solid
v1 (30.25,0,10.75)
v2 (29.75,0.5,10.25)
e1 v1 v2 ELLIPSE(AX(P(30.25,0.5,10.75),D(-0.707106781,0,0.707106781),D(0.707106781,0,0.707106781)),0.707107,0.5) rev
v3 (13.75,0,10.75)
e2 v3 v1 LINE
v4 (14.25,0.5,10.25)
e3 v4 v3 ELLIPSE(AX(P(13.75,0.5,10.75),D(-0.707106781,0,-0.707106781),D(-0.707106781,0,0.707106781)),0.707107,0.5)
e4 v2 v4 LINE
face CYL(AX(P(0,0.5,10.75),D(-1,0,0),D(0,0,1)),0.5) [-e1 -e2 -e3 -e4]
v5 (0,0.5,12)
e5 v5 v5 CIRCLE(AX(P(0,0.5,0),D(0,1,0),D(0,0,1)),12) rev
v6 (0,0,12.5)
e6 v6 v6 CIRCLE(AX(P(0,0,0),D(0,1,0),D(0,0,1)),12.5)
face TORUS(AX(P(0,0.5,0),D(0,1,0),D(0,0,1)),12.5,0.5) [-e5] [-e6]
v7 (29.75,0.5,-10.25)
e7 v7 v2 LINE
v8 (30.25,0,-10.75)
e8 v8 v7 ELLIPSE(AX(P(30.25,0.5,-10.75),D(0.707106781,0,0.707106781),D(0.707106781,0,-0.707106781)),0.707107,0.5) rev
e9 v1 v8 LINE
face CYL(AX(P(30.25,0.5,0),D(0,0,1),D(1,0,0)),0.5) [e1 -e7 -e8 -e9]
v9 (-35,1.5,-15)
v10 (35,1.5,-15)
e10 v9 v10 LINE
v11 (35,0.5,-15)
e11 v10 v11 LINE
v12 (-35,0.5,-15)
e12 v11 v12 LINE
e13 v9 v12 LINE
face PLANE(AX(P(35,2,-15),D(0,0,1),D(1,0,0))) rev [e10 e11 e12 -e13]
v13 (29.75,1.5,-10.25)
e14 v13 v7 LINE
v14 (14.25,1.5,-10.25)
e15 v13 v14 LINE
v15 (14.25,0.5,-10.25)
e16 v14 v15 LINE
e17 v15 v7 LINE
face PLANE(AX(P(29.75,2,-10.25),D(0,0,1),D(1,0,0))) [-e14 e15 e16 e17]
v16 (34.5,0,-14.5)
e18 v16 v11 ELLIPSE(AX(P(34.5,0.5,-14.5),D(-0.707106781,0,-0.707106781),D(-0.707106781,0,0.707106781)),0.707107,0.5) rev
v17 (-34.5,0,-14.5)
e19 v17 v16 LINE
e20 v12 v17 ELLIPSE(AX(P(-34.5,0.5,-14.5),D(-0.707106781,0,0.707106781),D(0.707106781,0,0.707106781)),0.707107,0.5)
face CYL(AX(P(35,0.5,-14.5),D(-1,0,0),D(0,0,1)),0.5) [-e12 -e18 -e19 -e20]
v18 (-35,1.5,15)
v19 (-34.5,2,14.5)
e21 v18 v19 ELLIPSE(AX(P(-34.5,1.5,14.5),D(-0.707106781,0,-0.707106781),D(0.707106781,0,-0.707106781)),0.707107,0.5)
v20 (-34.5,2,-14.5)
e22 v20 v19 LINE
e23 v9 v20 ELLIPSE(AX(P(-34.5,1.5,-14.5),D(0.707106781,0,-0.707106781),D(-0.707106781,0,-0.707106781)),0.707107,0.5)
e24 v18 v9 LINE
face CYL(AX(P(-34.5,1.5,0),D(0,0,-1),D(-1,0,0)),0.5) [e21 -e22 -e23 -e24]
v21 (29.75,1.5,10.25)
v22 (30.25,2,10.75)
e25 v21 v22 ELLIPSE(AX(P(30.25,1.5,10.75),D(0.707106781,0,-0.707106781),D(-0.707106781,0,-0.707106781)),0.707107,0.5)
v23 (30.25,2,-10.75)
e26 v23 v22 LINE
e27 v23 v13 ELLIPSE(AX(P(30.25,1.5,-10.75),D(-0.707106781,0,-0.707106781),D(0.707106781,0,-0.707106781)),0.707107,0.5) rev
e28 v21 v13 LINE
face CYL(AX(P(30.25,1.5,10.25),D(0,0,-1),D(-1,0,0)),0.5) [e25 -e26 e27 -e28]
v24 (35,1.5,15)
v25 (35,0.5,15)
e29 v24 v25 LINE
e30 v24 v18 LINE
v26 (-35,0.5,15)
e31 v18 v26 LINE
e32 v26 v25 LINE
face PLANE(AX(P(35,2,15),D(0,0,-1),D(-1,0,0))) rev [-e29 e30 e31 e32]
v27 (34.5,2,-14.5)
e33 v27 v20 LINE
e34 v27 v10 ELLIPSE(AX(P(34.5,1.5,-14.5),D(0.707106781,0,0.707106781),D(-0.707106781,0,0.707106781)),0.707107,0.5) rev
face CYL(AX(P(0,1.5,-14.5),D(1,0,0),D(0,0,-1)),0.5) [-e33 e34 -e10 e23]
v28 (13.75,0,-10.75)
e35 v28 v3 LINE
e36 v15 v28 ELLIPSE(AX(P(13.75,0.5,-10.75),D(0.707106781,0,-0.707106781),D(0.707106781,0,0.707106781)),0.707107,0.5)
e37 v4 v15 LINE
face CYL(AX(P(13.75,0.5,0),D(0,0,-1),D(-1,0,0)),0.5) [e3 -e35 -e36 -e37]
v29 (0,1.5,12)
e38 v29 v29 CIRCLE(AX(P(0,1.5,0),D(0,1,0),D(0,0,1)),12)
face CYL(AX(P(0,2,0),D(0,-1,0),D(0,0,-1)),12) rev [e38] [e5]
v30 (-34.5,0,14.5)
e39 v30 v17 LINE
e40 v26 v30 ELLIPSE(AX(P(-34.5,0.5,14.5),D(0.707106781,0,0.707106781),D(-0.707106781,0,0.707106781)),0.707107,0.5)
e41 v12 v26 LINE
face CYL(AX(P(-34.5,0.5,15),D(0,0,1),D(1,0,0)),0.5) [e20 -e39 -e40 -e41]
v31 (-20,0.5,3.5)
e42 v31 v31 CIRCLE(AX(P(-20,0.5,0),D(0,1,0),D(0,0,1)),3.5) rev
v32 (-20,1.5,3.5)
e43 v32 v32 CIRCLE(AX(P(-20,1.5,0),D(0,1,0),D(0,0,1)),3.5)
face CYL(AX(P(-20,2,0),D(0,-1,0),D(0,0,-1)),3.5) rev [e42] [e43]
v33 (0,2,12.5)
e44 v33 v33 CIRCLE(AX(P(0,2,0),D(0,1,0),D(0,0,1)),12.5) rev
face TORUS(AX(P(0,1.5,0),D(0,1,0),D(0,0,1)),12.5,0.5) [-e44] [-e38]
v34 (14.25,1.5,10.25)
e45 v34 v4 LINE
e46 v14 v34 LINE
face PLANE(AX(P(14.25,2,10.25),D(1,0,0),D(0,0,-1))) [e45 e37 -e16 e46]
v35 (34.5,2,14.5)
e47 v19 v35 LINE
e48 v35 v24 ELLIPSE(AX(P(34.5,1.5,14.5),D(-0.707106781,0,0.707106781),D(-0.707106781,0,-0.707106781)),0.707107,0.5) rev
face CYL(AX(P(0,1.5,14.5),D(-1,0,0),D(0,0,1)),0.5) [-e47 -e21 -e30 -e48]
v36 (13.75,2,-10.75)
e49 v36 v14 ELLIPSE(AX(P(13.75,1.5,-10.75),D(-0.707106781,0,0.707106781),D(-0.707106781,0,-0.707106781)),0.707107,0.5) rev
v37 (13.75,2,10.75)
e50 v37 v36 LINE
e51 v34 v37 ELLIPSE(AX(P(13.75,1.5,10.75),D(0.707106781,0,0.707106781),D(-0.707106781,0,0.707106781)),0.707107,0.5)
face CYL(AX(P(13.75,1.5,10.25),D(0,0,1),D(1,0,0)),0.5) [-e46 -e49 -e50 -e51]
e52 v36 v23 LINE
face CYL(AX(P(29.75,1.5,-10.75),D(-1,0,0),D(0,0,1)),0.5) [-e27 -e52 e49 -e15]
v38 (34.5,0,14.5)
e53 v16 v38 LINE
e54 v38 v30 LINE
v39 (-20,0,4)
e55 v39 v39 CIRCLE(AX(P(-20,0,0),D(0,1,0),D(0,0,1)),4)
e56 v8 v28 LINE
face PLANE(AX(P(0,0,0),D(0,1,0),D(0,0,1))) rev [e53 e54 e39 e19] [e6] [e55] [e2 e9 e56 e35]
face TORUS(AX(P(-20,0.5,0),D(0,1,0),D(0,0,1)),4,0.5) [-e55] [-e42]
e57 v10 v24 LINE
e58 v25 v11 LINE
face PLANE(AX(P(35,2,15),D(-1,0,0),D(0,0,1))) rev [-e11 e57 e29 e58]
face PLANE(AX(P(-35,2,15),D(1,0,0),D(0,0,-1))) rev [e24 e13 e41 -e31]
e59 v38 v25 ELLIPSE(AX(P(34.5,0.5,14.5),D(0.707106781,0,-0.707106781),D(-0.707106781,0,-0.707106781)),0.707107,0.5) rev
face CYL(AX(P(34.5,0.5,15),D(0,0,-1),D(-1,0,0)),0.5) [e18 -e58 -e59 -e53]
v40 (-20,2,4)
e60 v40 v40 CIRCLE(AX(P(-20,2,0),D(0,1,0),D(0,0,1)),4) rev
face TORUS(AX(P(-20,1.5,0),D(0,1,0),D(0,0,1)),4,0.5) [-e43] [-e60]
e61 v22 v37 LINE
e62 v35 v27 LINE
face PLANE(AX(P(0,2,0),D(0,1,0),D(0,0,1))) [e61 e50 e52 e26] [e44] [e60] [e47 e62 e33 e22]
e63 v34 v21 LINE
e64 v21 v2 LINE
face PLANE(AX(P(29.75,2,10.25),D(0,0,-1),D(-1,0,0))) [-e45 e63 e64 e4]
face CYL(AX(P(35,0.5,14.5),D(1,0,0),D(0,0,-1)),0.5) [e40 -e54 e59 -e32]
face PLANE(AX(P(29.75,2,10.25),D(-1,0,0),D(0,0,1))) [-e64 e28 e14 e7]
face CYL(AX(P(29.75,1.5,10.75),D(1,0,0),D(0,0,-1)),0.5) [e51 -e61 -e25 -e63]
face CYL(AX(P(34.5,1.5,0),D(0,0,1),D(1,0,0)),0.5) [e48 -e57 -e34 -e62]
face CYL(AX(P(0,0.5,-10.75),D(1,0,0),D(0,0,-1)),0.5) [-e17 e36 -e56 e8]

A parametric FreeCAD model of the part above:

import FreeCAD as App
import Part
import Sketcher
from FreeCAD import Vector


def edges_at(feature, points):
    """Names of the edges that pass closest to the given points."""
    edges = feature.Shape.Edges
    near = lambda p: min(range(len(edges)), key=lambda i: edges[i].distToShape(Part.Vertex(*p))[0])
    return sorted({f"Edge{near(p) + 1}" for p in points})


def add_polygon(sketch, points):
    """Adds a closed chain of lines whose ends are joined by coincident constraints."""
    first, n = sketch.GeometryCount, len(points)
    for a, b in zip(points, points[1:] + points[:1]):
        sketch.addGeometry(Part.LineSegment(App.Vector(*a, 0), App.Vector(*b, 0)), False)
    for i in range(n):
        sketch.addConstraint(Sketcher.Constraint("Coincident", first + i, 2, first + (i + 1) % n, 1))

doc = App.newDocument("Part")
params = doc.addObject("Spreadsheet::Sheet", "Params")
for row, (alias, value) in enumerate([
    ("sketch1_diameter", "7 mm"),
    ("sketch1_diameter2", "24 mm"),
    ("sketch1_width", "70 mm"),
    ("sketch1_height", "30 mm"),
    ("sketch1_width2", "15.5 mm"),
    ("pad1_length", "2 mm"),
    ("fillet_radius", "0.5 mm"),
], start=1):
    params.set(f"A{row}", alias)
    params.set(f"B{row}", "=" + value)
    params.setAlias(f"B{row}", alias)

body = doc.addObject("PartDesign::Body", "Body")

sketch1 = body.newObject("Sketcher::SketchObject", "Sketch")
sketch1.AttachmentSupport = (doc.getObject("XZ_Plane"), [""])
sketch1.MapMode = "FlatFace"
add_polygon(sketch1, [(-35, -15), (-35, 15), (35, 15), (35, -15)])
sketch1.addGeometry(Part.Circle(Vector(-20, 0, 0), Vector(0, 0, 1), 3.5), False)
sketch1.addGeometry(Part.Circle(Vector(0, 0, 0), Vector(0, 0, 1), 12), False)
add_polygon(sketch1, [(29.8, 10.2), (14.2, 10.2), (14.2, -10.2), (29.8, -10.2)])
sketch1.addConstraint(Sketcher.Constraint("Vertical", 0))
sketch1.addConstraint(Sketcher.Constraint("Horizontal", 1))
sketch1.addConstraint(Sketcher.Constraint("Vertical", 2))
sketch1.addConstraint(Sketcher.Constraint("Horizontal", 3))
sketch1.addConstraint(Sketcher.Constraint("Horizontal", 6))
sketch1.addConstraint(Sketcher.Constraint("Vertical", 7))
sketch1.addConstraint(Sketcher.Constraint("Horizontal", 8))
sketch1.addConstraint(Sketcher.Constraint("Vertical", 9))
sketch1.addConstraint(Sketcher.Constraint("Coincident", 5, 3, -1, 1))
sketch1.addConstraint(Sketcher.Constraint("Symmetric", 0, 2, 2, 2, -1, 1))
sketch1.addConstraint(Sketcher.Constraint("PointOnObject", 4, 3, -1))
sketch1.addConstraint(Sketcher.Constraint("Diameter", 4, 7.0))
sketch1.addConstraint(Sketcher.Constraint("Diameter", 5, 24.0))
sketch1.addConstraint(Sketcher.Constraint("DistanceX", 1, 1, 1, 2, 70.0))
sketch1.addConstraint(Sketcher.Constraint("DistanceY", 0, 1, 0, 2, 30.0))
sketch1.addConstraint(Sketcher.Constraint("DistanceX", 6, 2, 6, 1, 15.5))
sketch1.addConstraint(Sketcher.Constraint("DistanceY", 7, 2, 7, 1, 20.5))
sketch1.addConstraint(Sketcher.Constraint("DistanceX", 4, 3, -1, 1, 20.0))
sketch1.addConstraint(Sketcher.Constraint("DistanceX", -1, 1, 6, 2, 14.25))
sketch1.addConstraint(Sketcher.Constraint("DistanceY", -1, 1, 6, 2, 10.25))
sketch1.setExpression("Constraints[19]", "Params.sketch1_diameter")
sketch1.setExpression("Constraints[20]", "Params.sketch1_diameter2")
sketch1.setExpression("Constraints[21]", "Params.sketch1_width")
sketch1.setExpression("Constraints[22]", "Params.sketch1_height")
sketch1.setExpression("Constraints[23]", "Params.sketch1_width2")
pad1 = body.newObject("PartDesign::Pad", "Pad")
pad1.Profile = sketch1
pad1.setExpression("Length", "Params.pad1_length")
pad1.Reversed = True
doc.recompute()

fillet = body.newObject("PartDesign::Fillet", "Fillet")
fillet.Base = (pad1, edges_at(pad1, [
    (0, 0, -12),
    (0, 2, -12),
    (35, 2, 0),
    (-20, 0, -3.5),
    (-20, 2, -3.5),
    (0, 2, -15),
    (14.25, 0, 0),
    (22, 0, 10.25),
    (29.75, 0, 0),
    (22, 0, -10.25),
    (14.25, 2, 0),
    (22, 2, 10.25),
    (29.75, 2, 0),
    (22, 2, -10.25),
    (-35, 2, 0),
    (0, 0, -15),
    (35, 0, 0),
    (0, 0, 15),
    (-35, 0, 0),
    (0, 2, 15),
]))
fillet.setExpression("Radius", "Params.fillet_radius")

doc.recompute()
